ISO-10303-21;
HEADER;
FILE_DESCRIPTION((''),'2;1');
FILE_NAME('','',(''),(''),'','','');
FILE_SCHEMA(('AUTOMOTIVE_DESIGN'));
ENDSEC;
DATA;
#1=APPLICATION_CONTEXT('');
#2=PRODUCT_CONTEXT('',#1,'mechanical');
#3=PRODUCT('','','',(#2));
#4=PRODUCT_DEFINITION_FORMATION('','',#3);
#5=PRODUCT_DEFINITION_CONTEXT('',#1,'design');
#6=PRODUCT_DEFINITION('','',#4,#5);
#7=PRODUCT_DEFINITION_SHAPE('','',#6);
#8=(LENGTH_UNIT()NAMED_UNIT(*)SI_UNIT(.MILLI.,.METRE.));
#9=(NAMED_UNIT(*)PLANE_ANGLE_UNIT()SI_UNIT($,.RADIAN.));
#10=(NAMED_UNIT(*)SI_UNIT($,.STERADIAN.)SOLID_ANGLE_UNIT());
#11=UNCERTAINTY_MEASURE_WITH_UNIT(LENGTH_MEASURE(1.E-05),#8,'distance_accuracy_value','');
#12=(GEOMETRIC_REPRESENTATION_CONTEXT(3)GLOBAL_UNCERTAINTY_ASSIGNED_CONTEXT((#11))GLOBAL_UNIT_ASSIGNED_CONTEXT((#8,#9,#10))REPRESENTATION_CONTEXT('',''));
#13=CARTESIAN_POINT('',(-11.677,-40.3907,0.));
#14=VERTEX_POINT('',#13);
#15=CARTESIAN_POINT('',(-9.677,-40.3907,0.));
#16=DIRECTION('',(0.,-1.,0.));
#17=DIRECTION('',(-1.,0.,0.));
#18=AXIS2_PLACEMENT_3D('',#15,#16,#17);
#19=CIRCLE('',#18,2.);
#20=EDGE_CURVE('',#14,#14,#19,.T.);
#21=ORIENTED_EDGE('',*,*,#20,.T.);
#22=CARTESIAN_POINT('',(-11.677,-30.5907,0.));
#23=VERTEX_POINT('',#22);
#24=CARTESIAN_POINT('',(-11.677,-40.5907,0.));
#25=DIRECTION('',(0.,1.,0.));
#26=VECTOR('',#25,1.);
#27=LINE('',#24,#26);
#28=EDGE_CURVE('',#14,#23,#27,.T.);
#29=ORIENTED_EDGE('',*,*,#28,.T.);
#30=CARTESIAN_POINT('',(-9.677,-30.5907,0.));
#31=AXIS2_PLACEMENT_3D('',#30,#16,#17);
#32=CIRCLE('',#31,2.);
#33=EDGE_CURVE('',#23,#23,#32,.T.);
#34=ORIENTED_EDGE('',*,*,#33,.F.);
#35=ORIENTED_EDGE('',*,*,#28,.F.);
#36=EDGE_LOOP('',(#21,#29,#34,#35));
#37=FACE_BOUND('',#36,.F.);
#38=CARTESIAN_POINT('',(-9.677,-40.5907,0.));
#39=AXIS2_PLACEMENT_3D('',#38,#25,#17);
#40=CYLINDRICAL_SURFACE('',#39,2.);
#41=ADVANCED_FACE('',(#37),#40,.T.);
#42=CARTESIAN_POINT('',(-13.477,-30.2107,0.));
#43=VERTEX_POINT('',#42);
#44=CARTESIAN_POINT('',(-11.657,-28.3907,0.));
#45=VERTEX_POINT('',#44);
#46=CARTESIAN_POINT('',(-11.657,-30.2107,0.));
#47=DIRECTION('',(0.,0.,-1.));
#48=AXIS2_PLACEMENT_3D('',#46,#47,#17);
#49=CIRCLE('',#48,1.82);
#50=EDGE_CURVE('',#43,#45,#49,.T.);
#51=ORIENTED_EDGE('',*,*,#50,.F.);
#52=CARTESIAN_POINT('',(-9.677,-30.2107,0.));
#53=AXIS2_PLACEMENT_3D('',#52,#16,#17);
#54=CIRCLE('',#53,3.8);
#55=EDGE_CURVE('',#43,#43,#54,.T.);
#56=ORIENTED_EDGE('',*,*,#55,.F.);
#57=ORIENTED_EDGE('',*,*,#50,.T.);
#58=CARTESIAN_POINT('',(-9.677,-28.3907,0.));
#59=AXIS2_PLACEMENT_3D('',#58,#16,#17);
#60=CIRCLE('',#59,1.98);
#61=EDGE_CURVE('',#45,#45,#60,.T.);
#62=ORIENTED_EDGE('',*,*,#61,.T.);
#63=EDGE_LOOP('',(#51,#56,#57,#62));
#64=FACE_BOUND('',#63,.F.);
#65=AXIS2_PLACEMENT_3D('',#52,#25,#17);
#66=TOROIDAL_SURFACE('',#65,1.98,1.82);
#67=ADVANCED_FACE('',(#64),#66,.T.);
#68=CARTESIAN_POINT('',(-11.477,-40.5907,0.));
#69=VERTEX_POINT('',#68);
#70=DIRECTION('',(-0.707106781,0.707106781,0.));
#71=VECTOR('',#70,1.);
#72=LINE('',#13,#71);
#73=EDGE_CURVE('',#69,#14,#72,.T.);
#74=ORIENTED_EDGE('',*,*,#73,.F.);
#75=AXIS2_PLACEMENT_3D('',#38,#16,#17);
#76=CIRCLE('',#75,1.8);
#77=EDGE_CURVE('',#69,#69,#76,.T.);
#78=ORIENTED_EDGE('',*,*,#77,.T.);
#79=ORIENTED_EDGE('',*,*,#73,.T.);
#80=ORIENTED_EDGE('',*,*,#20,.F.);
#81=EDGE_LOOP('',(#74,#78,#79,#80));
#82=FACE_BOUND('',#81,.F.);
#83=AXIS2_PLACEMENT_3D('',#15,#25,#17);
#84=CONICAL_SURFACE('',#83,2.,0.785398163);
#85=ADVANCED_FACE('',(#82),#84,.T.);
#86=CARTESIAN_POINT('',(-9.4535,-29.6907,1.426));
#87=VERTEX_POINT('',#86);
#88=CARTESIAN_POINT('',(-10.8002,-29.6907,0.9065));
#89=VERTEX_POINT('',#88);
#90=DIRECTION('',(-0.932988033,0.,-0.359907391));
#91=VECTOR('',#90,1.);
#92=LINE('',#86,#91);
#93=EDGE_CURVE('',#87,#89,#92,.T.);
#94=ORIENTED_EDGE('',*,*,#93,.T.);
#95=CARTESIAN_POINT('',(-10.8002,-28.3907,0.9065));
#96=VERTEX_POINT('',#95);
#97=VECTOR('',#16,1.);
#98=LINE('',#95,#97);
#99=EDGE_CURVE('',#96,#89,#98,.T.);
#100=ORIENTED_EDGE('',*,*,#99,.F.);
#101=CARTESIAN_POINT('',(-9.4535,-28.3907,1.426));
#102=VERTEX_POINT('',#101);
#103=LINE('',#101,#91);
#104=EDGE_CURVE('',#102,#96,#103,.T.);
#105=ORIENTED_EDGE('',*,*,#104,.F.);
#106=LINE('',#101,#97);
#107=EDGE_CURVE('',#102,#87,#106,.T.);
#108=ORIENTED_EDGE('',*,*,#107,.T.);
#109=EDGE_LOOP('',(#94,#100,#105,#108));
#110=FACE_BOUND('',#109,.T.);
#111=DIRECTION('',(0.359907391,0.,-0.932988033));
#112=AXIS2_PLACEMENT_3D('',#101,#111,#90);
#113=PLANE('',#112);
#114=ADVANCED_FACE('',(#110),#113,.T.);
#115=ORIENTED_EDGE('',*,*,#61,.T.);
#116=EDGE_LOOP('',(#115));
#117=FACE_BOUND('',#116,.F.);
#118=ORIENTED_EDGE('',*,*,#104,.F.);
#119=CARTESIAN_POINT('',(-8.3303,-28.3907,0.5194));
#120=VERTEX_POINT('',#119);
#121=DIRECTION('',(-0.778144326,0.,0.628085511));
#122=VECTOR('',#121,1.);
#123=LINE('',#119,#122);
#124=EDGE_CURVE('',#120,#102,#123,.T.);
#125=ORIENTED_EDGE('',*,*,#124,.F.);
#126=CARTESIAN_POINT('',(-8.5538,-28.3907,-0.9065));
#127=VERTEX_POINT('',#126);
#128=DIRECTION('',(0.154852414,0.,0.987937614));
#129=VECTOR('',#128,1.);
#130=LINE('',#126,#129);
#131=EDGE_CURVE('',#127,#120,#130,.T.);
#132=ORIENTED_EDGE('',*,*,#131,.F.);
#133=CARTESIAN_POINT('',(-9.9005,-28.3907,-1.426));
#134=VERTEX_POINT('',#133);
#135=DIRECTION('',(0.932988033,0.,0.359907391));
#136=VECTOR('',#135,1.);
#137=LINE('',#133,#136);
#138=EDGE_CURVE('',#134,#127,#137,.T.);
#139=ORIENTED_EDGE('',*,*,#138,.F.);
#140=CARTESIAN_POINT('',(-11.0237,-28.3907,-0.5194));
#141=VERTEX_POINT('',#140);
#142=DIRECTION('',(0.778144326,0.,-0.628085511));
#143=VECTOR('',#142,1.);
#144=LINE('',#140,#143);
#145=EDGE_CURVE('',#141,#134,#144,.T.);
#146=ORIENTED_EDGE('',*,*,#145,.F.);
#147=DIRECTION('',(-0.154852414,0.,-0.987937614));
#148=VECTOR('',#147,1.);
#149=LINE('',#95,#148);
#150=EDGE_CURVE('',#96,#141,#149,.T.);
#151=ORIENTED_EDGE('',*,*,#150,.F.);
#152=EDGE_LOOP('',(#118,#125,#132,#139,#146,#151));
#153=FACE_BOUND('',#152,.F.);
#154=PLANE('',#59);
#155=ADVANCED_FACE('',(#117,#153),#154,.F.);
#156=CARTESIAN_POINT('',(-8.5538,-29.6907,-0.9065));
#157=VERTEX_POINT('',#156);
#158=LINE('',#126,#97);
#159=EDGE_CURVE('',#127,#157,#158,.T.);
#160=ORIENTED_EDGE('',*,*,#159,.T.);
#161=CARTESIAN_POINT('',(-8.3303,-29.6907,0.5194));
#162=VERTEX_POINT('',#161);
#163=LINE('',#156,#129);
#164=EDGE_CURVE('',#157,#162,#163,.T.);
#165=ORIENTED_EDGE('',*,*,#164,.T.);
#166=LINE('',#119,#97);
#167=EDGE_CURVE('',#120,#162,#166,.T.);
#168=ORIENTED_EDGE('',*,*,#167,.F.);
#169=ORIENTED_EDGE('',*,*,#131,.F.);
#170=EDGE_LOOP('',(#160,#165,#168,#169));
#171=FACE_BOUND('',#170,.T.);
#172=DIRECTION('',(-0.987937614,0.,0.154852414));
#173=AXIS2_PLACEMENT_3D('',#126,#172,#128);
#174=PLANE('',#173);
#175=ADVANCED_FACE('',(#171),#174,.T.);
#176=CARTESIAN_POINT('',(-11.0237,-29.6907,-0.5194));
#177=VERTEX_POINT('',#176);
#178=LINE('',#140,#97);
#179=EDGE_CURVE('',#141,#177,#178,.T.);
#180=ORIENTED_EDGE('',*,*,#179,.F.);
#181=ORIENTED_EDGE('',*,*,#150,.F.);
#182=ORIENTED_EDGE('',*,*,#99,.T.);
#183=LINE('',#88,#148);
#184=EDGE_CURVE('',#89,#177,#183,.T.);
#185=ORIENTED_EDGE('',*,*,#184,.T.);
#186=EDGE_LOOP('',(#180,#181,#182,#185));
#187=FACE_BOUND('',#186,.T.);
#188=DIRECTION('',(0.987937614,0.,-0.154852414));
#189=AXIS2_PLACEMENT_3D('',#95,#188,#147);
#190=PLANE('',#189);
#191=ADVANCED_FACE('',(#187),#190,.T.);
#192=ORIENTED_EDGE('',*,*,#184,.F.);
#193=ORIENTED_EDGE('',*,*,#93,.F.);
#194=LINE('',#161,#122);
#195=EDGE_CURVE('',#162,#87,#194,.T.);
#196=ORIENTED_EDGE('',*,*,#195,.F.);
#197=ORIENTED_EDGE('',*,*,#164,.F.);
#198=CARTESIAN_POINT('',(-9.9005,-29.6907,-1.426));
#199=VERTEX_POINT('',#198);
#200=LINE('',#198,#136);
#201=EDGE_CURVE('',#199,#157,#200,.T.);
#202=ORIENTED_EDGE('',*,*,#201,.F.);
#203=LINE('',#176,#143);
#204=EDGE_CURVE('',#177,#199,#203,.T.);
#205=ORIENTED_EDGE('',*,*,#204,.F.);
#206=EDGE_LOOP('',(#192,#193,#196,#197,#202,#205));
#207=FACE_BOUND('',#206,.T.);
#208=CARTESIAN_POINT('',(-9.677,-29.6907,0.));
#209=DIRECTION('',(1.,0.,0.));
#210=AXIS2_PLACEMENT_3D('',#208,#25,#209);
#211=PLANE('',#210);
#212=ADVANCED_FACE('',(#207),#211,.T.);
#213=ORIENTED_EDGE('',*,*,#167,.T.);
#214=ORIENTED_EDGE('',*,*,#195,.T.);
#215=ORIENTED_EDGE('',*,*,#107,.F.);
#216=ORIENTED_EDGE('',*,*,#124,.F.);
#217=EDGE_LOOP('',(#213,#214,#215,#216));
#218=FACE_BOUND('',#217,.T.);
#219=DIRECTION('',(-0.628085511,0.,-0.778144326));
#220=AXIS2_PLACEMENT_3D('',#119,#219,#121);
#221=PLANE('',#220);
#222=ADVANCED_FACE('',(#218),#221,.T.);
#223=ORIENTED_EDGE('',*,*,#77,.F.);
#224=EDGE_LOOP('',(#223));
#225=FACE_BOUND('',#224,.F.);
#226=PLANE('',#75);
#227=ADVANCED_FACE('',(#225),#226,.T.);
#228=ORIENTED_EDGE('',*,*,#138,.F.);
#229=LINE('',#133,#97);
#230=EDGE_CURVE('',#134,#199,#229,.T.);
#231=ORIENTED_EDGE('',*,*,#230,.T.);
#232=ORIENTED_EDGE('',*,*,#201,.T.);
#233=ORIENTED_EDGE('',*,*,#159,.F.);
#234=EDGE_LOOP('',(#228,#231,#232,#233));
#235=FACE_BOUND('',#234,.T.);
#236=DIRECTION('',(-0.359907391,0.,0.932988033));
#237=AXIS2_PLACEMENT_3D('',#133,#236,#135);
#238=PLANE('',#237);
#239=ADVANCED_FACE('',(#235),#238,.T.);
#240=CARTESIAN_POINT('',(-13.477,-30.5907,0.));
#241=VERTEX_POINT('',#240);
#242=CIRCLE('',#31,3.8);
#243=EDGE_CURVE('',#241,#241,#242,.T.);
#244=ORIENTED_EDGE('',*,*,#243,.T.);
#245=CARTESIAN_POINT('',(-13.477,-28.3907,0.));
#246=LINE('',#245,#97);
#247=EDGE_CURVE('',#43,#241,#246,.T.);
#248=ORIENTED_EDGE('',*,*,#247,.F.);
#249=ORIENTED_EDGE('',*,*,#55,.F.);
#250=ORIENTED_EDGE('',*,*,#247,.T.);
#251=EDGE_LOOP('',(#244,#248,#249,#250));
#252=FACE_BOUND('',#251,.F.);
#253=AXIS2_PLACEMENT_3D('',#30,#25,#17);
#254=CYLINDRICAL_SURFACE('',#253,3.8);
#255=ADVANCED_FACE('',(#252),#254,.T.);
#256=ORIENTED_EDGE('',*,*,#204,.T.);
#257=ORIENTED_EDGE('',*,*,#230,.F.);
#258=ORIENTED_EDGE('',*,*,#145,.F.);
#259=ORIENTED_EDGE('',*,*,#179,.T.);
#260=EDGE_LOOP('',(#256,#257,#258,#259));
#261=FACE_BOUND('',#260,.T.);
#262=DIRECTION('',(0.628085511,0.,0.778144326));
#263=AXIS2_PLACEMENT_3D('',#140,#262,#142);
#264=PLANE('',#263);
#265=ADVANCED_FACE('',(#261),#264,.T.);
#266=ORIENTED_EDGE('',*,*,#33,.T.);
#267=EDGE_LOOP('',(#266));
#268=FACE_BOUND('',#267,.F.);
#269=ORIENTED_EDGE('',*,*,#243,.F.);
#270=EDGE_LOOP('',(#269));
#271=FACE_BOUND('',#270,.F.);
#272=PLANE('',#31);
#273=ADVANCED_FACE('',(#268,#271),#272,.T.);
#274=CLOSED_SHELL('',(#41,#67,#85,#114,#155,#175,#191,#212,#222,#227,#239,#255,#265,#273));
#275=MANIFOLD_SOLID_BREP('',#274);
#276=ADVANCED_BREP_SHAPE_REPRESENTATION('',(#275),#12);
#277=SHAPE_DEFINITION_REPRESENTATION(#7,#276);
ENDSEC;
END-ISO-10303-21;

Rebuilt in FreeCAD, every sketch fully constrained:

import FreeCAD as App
import Part
import Sketcher

V = App.Vector
Q = App.Units.Quantity


def edges_at(feature, points):
    """Names of the edges that pass closest to the given points."""
    edges = feature.Shape.Edges
    near = lambda p: min(range(len(edges)), key=lambda i: edges[i].distToShape(Part.Vertex(*p))[0])
    return sorted({f"Edge{near(p) + 1}" for p in points})

doc = App.newDocument("Part")
body = doc.addObject("PartDesign::Body", "Body")

# Sketch on XY plane
sketch1 = body.newObject("Sketcher::SketchObject", "Sketch")
sketch1.AttachmentSupport = (doc.getObject("XY_Plane"), [""])
sketch1.MapMode = "FlatFace"
sketch1.addGeometry([
    Part.LineSegment(V(-9.7, -40.6, 0), V(-9.7, -28.4, 0)),  # 0
    Part.LineSegment(V(-9.7, -28.4, 0), V(-13.5, -28.4, 0)),  # 1
    Part.LineSegment(V(-13.5, -28.4, 0), V(-13.5, -30.6, 0)),  # 2
    Part.LineSegment(V(-13.5, -30.6, 0), V(-11.7, -30.6, 0)),  # 3
    Part.LineSegment(V(-11.7, -30.6, 0), V(-11.7, -40.6, 0)),  # 4
    Part.LineSegment(V(-11.7, -40.6, 0), V(-9.7, -40.6, 0)),  # 5
], False)
sketch1.addGeometry(Part.LineSegment(V(-9.7, -28.4, 0), V(-9.7, -40.6, 0)), True)  # axis
sketch1.addConstraint([
    Sketcher.Constraint("Coincident", 0, 2, 1, 1),
    Sketcher.Constraint("Coincident", 1, 2, 2, 1),
    Sketcher.Constraint("Coincident", 2, 2, 3, 1),
    Sketcher.Constraint("Coincident", 3, 2, 4, 1),
    Sketcher.Constraint("Coincident", 4, 2, 5, 1),
    Sketcher.Constraint("Coincident", 5, 2, 0, 1),
    Sketcher.Constraint("Vertical", 0),
    Sketcher.Constraint("Horizontal", 1),
    Sketcher.Constraint("Vertical", 2),
    Sketcher.Constraint("Horizontal", 3),
    Sketcher.Constraint("Vertical", 4),
    Sketcher.Constraint("Horizontal", 5),
    Sketcher.Constraint("Vertical", 6),
    Sketcher.Constraint("Coincident", 6, 1, 0, 2),
    Sketcher.Constraint("Horizontal", 4, 2, 6, 2),
    Sketcher.Constraint("DistanceX", 5, 1, 5, 2, Q("2 mm")),
    Sketcher.Constraint("DistanceY", 4, 2, 4, 1, Q("10 mm")),
    Sketcher.Constraint("DistanceX", 1, 2, 1, 1, Q("3.8 mm")),
    Sketcher.Constraint("DistanceY", 2, 2, 2, 1, Q("2.2 mm")),
    Sketcher.Constraint("DistanceX", 0, 2, -1, 1, Q("9.677 mm")),
    Sketcher.Constraint("DistanceY", 0, 2, -1, 1, Q("28.3907 mm")),
])
revolution = body.newObject("PartDesign::Revolution", "Revolution")
revolution.Profile = sketch1
revolution.ReferenceAxis = (sketch1, ["Axis0"])
revolution.Angle = 360
doc.recompute()

chamfer = body.newObject("PartDesign::Chamfer", "Chamfer")
chamfer.Base = (revolution, edges_at(revolution, [(-7.677, -40.591, 0)]))
chamfer.Size = 0.2
doc.recompute()

fillet = body.newObject("PartDesign::Fillet", "Fillet")
fillet.Base = (chamfer, edges_at(chamfer, [(-5.877, -28.391, 0)]))
fillet.Radius = 1.82

# Sketch on XZ plane
sketch2 = body.newObject("Sketcher::SketchObject", "Sketch001")
sketch2.AttachmentSupport = (doc.getObject("XZ_Plane"), [""])
sketch2.MapMode = "FlatFace"
sketch2.AttachmentOffset = App.Placement(V(0, 0, 28.3907), App.Rotation())
sketch2.addGeometry([
    Part.LineSegment(V(-8.3303, 0.5194, 0), V(-8.5538, -0.9065, 0)),  # 0
    Part.LineSegment(V(-8.5538, -0.9065, 0), V(-9.9005, -1.426, 0)),  # 1
    Part.LineSegment(V(-9.9005, -1.426, 0), V(-11.0237, -0.5194, 0)),  # 2
    Part.LineSegment(V(-11.0237, -0.5194, 0), V(-10.8002, 0.9065, 0)),  # 3
    Part.LineSegment(V(-10.8002, 0.9065, 0), V(-9.4535, 1.426, 0)),  # 4
    Part.LineSegment(V(-9.4535, 1.426, 0), V(-8.3303, 0.5194, 0)),  # 5
], False)
sketch2.addConstraint([
    Sketcher.Constraint("Coincident", 0, 2, 1, 1),
    Sketcher.Constraint("Coincident", 1, 2, 2, 1),
    Sketcher.Constraint("Coincident", 2, 2, 3, 1),
    Sketcher.Constraint("Coincident", 3, 2, 4, 1),
    Sketcher.Constraint("Coincident", 4, 2, 5, 1),
    Sketcher.Constraint("Coincident", 5, 2, 0, 1),
    Sketcher.Constraint("DistanceX", 2, 2, 0, 2, Q("2.47 mm")),
    Sketcher.Constraint("DistanceX", 3, 2, 5, 2, Q("2.47 mm")),
    Sketcher.Constraint("DistanceY", 1, 2, -1, 1, Q("1.426 mm")),
    Sketcher.Constraint("DistanceY", -1, 1, 4, 2, Q("1.426 mm")),
    Sketcher.Constraint("DistanceY", 0, 2, 2, 2, Q("0.387 mm")),
    Sketcher.Constraint("DistanceY", 2, 2, 3, 2, Q("1.426 mm")),
    Sketcher.Constraint("DistanceX", 1, 2, 4, 2, Q("0.447 mm")),
    Sketcher.Constraint("DistanceY", 0, 2, 5, 2, Q("1.426 mm")),
    Sketcher.Constraint("Distance", 0, Q("1.4433 mm")),
    Sketcher.Constraint("Distance", 1, Q("1.4434 mm")),
    Sketcher.Constraint("Distance", 2, Q("1.4434 mm")),
    Sketcher.Constraint("DistanceX", 0, 2, -1, 1, Q("8.5538 mm")),
])
pocket1 = body.newObject("PartDesign::Pocket", "Pocket")
pocket1.Profile = sketch2
pocket1.Length = 1.3
pocket1.Reversed = True

doc.recompute()
